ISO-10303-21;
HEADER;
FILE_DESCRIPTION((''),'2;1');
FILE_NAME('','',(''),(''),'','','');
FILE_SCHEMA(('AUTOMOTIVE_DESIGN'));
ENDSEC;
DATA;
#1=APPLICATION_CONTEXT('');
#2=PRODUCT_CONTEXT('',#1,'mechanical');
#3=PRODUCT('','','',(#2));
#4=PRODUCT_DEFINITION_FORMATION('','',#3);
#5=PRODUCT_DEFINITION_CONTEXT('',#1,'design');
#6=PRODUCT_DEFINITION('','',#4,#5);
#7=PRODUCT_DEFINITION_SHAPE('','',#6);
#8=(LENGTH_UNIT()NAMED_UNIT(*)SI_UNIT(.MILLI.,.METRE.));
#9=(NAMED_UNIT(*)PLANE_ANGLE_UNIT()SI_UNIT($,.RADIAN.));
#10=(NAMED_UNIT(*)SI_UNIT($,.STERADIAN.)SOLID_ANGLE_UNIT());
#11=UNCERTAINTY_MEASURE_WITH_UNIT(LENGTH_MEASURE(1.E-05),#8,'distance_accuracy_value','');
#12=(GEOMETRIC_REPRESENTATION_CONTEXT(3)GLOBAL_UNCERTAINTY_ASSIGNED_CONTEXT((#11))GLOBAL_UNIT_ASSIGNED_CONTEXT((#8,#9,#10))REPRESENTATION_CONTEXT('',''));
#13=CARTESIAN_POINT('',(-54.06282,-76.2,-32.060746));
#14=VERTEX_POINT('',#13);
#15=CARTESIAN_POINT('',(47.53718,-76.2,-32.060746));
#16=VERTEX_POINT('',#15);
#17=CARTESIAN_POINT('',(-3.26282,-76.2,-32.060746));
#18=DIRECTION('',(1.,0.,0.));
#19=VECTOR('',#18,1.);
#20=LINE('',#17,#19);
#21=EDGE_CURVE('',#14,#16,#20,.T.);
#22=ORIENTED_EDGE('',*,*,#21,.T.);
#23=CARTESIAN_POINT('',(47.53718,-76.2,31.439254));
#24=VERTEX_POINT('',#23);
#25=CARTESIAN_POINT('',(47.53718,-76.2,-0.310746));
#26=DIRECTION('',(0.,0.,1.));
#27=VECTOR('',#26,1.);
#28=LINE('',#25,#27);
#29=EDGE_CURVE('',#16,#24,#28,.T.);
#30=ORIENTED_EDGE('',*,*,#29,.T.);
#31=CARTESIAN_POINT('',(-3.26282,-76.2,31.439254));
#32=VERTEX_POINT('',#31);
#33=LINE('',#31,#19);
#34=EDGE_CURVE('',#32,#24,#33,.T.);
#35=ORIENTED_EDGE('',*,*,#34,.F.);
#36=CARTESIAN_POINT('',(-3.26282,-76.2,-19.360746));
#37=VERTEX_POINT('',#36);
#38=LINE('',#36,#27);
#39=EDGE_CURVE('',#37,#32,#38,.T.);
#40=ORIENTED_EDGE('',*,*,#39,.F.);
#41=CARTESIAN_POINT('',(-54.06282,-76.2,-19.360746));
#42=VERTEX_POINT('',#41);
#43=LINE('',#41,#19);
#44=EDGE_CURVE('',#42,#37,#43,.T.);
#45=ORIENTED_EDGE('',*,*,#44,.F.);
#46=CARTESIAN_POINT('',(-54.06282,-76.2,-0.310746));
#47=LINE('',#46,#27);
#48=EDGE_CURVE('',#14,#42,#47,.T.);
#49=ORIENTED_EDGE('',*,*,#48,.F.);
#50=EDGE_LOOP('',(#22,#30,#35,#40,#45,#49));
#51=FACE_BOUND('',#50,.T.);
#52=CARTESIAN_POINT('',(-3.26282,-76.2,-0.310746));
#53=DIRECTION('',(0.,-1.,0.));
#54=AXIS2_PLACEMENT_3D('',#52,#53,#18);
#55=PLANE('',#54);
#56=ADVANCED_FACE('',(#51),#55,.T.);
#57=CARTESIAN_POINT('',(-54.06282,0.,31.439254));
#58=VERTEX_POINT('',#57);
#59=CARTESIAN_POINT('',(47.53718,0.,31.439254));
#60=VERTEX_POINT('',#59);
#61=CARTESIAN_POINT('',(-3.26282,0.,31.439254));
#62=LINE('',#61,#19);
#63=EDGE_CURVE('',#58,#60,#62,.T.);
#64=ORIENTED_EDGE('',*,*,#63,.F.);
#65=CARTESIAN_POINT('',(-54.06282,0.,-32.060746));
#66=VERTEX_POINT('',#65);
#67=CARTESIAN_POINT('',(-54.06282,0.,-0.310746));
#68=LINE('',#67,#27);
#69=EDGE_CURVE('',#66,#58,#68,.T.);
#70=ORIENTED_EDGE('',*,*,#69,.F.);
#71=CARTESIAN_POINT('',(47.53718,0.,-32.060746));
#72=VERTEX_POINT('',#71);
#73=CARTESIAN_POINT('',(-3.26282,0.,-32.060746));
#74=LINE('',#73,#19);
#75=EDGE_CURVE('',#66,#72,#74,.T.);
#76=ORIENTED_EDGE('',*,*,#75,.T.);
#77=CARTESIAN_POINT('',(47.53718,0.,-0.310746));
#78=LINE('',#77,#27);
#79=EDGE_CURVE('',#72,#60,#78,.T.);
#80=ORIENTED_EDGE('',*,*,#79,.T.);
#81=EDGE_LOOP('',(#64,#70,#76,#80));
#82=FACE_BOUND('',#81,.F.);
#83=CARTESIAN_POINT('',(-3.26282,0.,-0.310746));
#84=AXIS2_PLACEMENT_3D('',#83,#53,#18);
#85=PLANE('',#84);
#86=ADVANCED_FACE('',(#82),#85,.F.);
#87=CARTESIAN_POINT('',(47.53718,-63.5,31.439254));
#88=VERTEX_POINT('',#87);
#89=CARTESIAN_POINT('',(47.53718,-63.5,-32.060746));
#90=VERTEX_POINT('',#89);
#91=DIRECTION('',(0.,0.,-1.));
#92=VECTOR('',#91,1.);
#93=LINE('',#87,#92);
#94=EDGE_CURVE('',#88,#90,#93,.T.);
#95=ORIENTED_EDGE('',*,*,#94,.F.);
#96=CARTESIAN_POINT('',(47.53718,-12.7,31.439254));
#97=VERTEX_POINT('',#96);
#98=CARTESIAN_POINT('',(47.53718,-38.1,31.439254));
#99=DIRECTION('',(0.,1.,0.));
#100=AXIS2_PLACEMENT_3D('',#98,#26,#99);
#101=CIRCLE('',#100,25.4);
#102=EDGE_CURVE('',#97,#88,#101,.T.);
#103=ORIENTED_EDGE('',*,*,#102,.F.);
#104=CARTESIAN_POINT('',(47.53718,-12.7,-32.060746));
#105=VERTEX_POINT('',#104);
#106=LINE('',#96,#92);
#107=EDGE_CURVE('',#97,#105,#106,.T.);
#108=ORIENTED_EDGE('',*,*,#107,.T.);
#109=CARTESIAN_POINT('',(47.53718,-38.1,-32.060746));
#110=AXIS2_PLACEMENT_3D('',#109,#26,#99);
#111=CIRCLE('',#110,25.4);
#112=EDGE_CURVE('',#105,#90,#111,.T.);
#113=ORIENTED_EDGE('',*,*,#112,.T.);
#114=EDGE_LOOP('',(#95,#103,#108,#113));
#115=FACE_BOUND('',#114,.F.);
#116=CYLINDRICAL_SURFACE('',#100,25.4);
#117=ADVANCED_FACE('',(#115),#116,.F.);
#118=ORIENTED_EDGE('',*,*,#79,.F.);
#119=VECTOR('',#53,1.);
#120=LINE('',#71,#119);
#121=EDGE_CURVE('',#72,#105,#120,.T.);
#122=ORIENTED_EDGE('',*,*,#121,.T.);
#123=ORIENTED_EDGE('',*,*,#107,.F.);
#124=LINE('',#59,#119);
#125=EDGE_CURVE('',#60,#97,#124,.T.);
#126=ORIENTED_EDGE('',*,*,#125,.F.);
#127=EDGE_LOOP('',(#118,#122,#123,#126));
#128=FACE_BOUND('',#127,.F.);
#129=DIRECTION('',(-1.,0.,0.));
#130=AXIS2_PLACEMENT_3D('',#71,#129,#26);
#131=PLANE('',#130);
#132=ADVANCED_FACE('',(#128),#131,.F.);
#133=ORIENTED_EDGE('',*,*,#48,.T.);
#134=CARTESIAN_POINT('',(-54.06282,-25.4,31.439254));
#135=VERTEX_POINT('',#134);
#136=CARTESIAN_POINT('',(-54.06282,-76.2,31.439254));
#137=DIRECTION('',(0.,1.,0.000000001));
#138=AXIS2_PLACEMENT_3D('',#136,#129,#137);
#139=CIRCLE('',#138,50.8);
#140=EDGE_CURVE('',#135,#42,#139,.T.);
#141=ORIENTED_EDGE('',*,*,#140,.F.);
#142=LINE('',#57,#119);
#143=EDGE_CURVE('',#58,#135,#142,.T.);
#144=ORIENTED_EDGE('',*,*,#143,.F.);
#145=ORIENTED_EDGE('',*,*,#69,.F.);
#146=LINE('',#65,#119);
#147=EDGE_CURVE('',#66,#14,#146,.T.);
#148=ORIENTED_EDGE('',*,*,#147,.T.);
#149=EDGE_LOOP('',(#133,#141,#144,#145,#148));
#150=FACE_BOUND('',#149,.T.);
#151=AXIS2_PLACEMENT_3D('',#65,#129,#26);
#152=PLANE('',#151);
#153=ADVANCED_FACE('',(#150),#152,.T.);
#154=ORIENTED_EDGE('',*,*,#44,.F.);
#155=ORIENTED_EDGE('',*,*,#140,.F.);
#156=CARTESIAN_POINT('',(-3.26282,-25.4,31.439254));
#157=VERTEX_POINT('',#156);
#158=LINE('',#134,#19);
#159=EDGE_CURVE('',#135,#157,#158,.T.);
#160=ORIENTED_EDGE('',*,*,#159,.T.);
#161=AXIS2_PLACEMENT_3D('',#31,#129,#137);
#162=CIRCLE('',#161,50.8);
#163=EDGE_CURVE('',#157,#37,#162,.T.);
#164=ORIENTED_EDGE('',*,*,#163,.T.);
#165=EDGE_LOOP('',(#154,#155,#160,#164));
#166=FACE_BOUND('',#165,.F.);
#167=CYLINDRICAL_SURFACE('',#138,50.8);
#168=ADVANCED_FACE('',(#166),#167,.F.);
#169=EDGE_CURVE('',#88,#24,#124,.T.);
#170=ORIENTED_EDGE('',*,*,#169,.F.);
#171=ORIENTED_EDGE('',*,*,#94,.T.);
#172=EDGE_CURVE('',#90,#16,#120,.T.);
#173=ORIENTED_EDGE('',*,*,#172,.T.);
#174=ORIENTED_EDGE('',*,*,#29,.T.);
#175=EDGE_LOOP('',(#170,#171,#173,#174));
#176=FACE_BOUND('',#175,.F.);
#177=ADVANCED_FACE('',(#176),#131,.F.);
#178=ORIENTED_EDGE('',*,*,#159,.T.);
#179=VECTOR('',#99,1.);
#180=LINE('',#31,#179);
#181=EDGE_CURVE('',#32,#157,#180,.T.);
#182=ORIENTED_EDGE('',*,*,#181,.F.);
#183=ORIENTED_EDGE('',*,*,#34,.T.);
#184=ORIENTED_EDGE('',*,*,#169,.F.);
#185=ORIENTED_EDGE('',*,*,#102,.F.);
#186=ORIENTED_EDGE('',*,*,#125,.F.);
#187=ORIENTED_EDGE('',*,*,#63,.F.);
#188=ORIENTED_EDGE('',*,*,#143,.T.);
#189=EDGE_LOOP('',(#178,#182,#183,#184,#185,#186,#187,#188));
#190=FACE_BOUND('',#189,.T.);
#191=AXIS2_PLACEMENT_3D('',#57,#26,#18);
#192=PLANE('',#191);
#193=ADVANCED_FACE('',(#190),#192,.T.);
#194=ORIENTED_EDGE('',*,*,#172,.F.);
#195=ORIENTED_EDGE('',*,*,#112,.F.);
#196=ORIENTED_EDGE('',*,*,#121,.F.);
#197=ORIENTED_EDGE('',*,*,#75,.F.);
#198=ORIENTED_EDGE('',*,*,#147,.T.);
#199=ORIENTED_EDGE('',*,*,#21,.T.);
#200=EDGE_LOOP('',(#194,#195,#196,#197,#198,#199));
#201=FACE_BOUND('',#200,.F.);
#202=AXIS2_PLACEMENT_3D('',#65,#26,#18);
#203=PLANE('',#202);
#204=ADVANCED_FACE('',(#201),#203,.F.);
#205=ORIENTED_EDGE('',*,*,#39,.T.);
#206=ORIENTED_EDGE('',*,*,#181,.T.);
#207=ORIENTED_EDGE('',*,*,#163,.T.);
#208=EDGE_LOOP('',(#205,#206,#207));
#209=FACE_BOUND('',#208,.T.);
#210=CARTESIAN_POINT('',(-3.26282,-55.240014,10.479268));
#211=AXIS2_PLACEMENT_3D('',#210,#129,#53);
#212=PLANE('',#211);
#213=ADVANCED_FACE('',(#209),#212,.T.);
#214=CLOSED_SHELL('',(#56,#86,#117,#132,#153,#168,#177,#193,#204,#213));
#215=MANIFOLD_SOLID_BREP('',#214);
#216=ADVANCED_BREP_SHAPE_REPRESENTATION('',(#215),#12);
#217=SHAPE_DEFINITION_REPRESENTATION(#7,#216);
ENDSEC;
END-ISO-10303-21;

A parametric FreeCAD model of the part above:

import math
import FreeCAD as App
import Part
import Sketcher
Q = App.Units.Quantity


def add_polygon(sketch, points):
    """Adds a closed chain of lines whose ends are joined by coincident constraints."""
    first, n = sketch.GeometryCount, len(points)
    for a, b in zip(points, points[1:] + points[:1]):
        sketch.addGeometry(Part.LineSegment(App.Vector(*a, 0), App.Vector(*b, 0)), False)
    for i in range(n):
        sketch.addConstraint(Sketcher.Constraint("Coincident", first + i, 2, first + (i + 1) % n, 1))

doc = App.newDocument("Part")
body = doc.addObject("PartDesign::Body", "Body")

# Sketch on XZ plane
sketch1 = body.newObject("Sketcher::SketchObject", "Sketch")
sketch1.AttachmentSupport = (doc.getObject("XZ_Plane"), [""])
sketch1.MapMode = "FlatFace"
add_polygon(sketch1, [(-54.06282, 31.439254), (-54.06282, -32.060746), (47.53718, -32.060746), (47.53718, 31.439254)])  # lines 0-3
sketch1.addConstraint([
    Sketcher.Constraint("Vertical", 0),
    Sketcher.Constraint("Horizontal", 1),
    Sketcher.Constraint("Vertical", 2),
    Sketcher.Constraint("Horizontal", 3),
    Sketcher.Constraint("DistanceX", 1, 1, 1, 2, Q("4 in")),
    Sketcher.Constraint("DistanceY", 0, 2, 0, 1, Q("2.5 in")),
    Sketcher.Constraint("DistanceX", 0, 2, -1, 1, Q("54.06282 mm")),
    Sketcher.Constraint("DistanceY", 0, 2, -1, 1, Q("32.060746 mm")),
])
pad1 = body.newObject("PartDesign::Pad", "Pad")
pad1.Profile = sketch1
pad1.Length = Q("3 in")

# Sketch on XY plane
sketch2 = body.newObject("Sketcher::SketchObject", "Sketch001")
sketch2.AttachmentSupport = (doc.getObject("XY_Plane"), [""])
sketch2.MapMode = "FlatFace"
sketch2.AttachmentOffset = App.Placement(App.Vector(0, 0, 31.439254), App.Rotation())
sketch2.addGeometry([
    Part.LineSegment(App.Vector(47.53718, -63.5, 0), App.Vector(47.53718, -12.7, 0)),
    Part.ArcOfCircle(Part.Circle(App.Vector(47.53718, -38.1, 0), App.Vector(0, 0, 1), 25.4), math.radians(90), math.radians(270)),
], False)
sketch2.addConstraint([
    Sketcher.Constraint("Coincident", 0, 1, 1, 2),
    Sketcher.Constraint("Coincident", 1, 1, 0, 2),
    Sketcher.Constraint("Vertical", 0),
    Sketcher.Constraint("Vertical", 1, 3, 0, 1),
    Sketcher.Constraint("Radius", 1, Q("1 in")),
    Sketcher.Constraint("DistanceY", 1, 3, -1, 1, Q("1.5 in")),
    Sketcher.Constraint("DistanceX", -1, 1, 1, 3, Q("47.53718 mm")),
])
pocket1 = body.newObject("PartDesign::Pocket", "Pocket")
pocket1.Profile = sketch2
pocket1.Length = Q("2.5 in")

# Sketch on YZ plane
sketch3 = body.newObject("Sketcher::SketchObject", "Sketch002")
sketch3.AttachmentSupport = (doc.getObject("YZ_Plane"), [""])
sketch3.MapMode = "FlatFace"
sketch3.AttachmentOffset = App.Placement(App.Vector(0, 0, -54.06282), App.Rotation())
sketch3.addGeometry([
    Part.LineSegment(App.Vector(-76.2, 31.439254, 0), App.Vector(-25.4, 31.439254, 0)),
    Part.ArcOfCircle(Part.Circle(App.Vector(-76.2, 31.439254, 0), App.Vector(0, 0, 1), 50.8), math.radians(-90), math.radians(0)),
    Part.LineSegment(App.Vector(-76.2, -19.360746, 0), App.Vector(-76.2, 31.439254, 0)),
], False)
sketch3.addConstraint([
    Sketcher.Constraint("Coincident", 0, 2, 1, 2),
    Sketcher.Constraint("Coincident", 1, 1, 2, 1),
    Sketcher.Constraint("Coincident", 2, 2, 0, 1),
    Sketcher.Constraint("Horizontal", 0),
    Sketcher.Constraint("Vertical", 2),
    Sketcher.Constraint("Coincident", 2, 2, 1, 3),
    Sketcher.Constraint("Radius", 1, Q("2 in")),
    Sketcher.Constraint("DistanceX", 1, 3, -1, 1, Q("3 in")),
    Sketcher.Constraint("DistanceY", -1, 1, 1, 3, Q("31.439254 mm")),
])
pocket2 = body.newObject("PartDesign::Pocket", "Pocket001")
pocket2.Profile = sketch3
pocket2.Length = Q("2 in")
pocket2.Reversed = True

doc.recompute()
